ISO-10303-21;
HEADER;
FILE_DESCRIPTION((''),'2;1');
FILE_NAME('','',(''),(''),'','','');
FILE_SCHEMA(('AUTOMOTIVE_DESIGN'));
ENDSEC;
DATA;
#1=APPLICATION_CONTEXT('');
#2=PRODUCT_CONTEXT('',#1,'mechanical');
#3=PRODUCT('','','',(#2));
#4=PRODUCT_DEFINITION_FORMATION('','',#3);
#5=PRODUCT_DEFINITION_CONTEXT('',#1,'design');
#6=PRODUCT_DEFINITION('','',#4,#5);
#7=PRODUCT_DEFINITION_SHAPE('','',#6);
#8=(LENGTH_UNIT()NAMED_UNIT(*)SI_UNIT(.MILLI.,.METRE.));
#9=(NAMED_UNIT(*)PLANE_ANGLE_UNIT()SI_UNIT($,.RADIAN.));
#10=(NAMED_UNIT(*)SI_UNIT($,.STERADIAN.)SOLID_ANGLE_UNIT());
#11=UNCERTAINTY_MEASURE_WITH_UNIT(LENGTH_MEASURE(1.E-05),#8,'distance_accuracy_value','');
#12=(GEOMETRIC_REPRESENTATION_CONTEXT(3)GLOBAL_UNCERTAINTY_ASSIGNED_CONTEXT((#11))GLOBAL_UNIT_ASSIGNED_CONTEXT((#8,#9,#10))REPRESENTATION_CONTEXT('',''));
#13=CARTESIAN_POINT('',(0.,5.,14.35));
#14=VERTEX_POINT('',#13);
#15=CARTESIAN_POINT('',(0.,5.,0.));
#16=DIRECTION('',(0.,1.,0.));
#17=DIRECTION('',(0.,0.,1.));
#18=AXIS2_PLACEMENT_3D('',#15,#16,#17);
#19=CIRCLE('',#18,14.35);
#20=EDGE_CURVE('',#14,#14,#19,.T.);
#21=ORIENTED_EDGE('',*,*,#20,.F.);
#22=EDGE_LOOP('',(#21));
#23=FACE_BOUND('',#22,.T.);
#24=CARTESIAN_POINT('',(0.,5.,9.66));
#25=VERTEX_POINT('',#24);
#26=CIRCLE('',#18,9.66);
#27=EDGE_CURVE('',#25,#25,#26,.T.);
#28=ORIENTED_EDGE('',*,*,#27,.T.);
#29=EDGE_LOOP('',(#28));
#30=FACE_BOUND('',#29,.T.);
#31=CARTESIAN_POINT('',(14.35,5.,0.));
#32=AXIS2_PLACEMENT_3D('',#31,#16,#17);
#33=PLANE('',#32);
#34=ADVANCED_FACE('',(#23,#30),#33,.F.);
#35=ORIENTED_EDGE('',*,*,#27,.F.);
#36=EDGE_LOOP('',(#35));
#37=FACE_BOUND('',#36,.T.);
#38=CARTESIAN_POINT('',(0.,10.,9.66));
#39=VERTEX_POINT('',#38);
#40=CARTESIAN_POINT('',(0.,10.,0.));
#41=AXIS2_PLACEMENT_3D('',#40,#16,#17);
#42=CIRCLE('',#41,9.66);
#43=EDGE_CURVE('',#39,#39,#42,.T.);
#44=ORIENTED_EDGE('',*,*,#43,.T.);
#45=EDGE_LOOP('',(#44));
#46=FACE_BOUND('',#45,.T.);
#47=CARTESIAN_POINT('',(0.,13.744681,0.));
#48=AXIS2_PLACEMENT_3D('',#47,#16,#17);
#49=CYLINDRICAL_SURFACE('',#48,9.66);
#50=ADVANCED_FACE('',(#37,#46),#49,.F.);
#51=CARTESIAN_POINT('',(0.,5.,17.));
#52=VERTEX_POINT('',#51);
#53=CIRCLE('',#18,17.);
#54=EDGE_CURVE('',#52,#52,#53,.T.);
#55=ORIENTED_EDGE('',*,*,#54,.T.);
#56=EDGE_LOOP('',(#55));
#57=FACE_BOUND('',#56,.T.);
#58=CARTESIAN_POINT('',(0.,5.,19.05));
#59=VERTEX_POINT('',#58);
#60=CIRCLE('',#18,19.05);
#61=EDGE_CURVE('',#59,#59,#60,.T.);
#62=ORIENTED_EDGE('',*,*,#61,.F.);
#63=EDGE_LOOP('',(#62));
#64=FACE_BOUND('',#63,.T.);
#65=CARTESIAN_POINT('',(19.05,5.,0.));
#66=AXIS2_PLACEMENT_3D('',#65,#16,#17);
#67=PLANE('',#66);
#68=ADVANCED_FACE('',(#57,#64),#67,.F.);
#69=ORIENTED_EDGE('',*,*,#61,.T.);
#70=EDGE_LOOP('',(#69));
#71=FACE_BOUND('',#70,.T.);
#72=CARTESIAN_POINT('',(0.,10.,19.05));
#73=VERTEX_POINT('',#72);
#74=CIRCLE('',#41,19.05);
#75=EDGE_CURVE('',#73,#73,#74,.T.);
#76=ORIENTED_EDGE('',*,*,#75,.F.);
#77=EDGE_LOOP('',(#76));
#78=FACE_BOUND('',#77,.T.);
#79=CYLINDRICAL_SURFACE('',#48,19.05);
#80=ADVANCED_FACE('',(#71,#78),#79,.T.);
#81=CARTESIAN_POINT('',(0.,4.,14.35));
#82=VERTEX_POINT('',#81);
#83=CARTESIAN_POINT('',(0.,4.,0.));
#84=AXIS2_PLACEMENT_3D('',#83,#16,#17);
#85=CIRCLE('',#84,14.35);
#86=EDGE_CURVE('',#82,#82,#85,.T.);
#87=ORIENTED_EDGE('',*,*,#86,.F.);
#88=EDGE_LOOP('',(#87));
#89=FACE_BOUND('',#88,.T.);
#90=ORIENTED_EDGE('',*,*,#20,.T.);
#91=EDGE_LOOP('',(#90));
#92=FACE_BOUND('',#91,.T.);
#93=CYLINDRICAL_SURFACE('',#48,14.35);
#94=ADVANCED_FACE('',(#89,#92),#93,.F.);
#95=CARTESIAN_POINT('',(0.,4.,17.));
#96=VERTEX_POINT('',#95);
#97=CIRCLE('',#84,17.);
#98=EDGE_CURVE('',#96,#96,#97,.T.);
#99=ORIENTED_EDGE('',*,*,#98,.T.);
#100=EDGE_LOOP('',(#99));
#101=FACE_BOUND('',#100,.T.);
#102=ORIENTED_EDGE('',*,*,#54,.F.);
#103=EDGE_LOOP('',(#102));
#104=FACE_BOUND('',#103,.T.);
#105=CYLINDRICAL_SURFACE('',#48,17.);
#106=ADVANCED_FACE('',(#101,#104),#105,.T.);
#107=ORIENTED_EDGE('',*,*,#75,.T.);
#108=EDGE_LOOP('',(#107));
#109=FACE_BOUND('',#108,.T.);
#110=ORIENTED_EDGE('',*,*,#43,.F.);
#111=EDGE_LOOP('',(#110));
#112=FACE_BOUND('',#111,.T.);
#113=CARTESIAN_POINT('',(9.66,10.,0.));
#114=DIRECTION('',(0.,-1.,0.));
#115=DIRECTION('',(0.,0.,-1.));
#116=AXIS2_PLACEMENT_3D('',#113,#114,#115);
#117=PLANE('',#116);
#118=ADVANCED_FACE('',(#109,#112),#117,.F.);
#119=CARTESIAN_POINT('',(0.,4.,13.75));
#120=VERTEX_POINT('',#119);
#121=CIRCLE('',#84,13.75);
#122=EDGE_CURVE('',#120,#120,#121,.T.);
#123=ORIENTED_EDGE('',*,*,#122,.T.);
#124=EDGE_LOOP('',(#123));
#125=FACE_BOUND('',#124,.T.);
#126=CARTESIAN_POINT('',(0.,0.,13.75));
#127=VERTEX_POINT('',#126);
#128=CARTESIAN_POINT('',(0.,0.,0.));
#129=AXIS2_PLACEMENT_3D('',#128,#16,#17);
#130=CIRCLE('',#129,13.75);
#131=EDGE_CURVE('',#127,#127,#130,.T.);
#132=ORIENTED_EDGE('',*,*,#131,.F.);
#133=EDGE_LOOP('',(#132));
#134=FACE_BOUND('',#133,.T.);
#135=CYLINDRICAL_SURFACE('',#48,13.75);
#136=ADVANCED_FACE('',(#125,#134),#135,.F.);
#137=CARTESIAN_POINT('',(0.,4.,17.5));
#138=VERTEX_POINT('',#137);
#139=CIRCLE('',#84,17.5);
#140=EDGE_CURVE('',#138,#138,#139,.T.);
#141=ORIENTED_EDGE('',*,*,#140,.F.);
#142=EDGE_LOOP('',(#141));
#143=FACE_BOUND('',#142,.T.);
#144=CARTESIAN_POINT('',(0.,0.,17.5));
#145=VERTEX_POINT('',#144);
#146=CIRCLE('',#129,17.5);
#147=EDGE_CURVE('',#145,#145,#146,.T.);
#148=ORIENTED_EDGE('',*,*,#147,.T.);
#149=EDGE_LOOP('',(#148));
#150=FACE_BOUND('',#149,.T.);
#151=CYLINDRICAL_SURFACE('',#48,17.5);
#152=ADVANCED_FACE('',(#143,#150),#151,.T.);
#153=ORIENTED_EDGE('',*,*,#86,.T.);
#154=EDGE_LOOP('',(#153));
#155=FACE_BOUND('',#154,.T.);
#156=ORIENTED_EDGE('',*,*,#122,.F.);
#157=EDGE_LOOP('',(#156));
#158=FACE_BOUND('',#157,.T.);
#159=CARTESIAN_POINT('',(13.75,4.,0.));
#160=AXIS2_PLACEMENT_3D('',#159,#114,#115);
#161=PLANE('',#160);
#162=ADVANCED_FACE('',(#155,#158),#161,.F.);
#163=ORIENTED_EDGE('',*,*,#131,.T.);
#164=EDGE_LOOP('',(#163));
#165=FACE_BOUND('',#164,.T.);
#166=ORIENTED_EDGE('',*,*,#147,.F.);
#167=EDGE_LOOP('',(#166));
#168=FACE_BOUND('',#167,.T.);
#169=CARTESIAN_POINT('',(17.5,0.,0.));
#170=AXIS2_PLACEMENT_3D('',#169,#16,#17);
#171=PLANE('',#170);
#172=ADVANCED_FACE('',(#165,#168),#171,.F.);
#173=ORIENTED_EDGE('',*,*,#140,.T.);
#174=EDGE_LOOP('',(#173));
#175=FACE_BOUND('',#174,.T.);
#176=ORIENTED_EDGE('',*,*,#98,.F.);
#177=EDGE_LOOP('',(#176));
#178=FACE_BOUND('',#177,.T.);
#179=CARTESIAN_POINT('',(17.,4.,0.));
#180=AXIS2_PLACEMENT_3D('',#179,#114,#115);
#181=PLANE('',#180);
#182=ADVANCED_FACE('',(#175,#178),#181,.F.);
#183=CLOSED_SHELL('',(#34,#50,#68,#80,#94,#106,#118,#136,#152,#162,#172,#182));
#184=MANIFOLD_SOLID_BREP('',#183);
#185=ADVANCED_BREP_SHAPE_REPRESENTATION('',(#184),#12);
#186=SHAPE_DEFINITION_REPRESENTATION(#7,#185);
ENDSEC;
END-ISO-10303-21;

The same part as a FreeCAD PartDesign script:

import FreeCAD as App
import Part
import Sketcher
from FreeCAD import Vector
Q = App.Units.Quantity


def add_polygon(sketch, points):
    """Adds a closed chain of lines whose ends are joined by coincident constraints."""
    first, n = sketch.GeometryCount, len(points)
    for a, b in zip(points, points[1:] + points[:1]):
        sketch.addGeometry(Part.LineSegment(App.Vector(*a, 0), App.Vector(*b, 0)), False)
    for i in range(n):
        sketch.addConstraint(Sketcher.Constraint("Coincident", first + i, 2, first + (i + 1) % n, 1))

doc = App.newDocument("Part")
body = doc.addObject("PartDesign::Body", "Body")

sketch1 = body.newObject("Sketcher::SketchObject", "Sketch")
sketch1.AttachmentSupport = (doc.getObject("XY_Plane"), [""])
sketch1.MapMode = "FlatFace"
add_polygon(sketch1, [(13.8, 0), (17.5, 0), (17.5, 4), (17, 4), (17, 5), (19.1, 5), (19.1, 10), (9.7, 10), (9.7, 5), (14.3, 5), (14.3, 4), (13.8, 4)])
sketch1.addConstraint(Sketcher.Constraint("Horizontal", 0))
sketch1.addConstraint(Sketcher.Constraint("Vertical", 1))
sketch1.addConstraint(Sketcher.Constraint("Horizontal", 2))
sketch1.addConstraint(Sketcher.Constraint("Vertical", 3))
sketch1.addConstraint(Sketcher.Constraint("Horizontal", 4))
sketch1.addConstraint(Sketcher.Constraint("Vertical", 5))
sketch1.addConstraint(Sketcher.Constraint("Horizontal", 6))
sketch1.addConstraint(Sketcher.Constraint("Vertical", 7))
sketch1.addConstraint(Sketcher.Constraint("Horizontal", 8))
sketch1.addConstraint(Sketcher.Constraint("Vertical", 9))
sketch1.addConstraint(Sketcher.Constraint("Horizontal", 10))
sketch1.addConstraint(Sketcher.Constraint("Vertical", 11))
sketch1.addConstraint(Sketcher.Constraint("PointOnObject", 0, 2, -1))
sketch1.addConstraint(Sketcher.Constraint("Horizontal", 4, 2, 7, 2))
sketch1.addConstraint(Sketcher.Constraint("Horizontal", 2, 2, 9, 2))
sketch1.addConstraint(Sketcher.Constraint("DistanceY", 1, 1, 1, 2, Q("4 mm")))
sketch1.addConstraint(Sketcher.Constraint("DistanceY", 3, 1, 3, 2, Q("1 mm")))
sketch1.addConstraint(Sketcher.Constraint("DistanceY", 5, 1, 5, 2, Q("5 mm")))
sketch1.addConstraint(Sketcher.Constraint("DistanceX", 2, 2, 2, 1, Q("0.5 mm")))
sketch1.addConstraint(Sketcher.Constraint("DistanceX", 10, 2, 10, 1, Q("0.6 mm")))
sketch1.addConstraint(Sketcher.Constraint("DistanceX", -1, 1, 2, 2, Q("17 mm")))
sketch1.addConstraint(Sketcher.Constraint("DistanceX", 0, 1, 0, 2, Q("3.75 mm")))
sketch1.addConstraint(Sketcher.Constraint("DistanceX", 4, 1, 4, 2, Q("2.05 mm")))
sketch1.addConstraint(Sketcher.Constraint("DistanceX", 6, 2, 6, 1, Q("9.39 mm")))
revolution = body.newObject("PartDesign::Revolution", "Revolution")
revolution.Profile = sketch1
revolution.ReferenceAxis = (sketch1, ["V_Axis"])
revolution.Angle = 360

doc.recompute()
